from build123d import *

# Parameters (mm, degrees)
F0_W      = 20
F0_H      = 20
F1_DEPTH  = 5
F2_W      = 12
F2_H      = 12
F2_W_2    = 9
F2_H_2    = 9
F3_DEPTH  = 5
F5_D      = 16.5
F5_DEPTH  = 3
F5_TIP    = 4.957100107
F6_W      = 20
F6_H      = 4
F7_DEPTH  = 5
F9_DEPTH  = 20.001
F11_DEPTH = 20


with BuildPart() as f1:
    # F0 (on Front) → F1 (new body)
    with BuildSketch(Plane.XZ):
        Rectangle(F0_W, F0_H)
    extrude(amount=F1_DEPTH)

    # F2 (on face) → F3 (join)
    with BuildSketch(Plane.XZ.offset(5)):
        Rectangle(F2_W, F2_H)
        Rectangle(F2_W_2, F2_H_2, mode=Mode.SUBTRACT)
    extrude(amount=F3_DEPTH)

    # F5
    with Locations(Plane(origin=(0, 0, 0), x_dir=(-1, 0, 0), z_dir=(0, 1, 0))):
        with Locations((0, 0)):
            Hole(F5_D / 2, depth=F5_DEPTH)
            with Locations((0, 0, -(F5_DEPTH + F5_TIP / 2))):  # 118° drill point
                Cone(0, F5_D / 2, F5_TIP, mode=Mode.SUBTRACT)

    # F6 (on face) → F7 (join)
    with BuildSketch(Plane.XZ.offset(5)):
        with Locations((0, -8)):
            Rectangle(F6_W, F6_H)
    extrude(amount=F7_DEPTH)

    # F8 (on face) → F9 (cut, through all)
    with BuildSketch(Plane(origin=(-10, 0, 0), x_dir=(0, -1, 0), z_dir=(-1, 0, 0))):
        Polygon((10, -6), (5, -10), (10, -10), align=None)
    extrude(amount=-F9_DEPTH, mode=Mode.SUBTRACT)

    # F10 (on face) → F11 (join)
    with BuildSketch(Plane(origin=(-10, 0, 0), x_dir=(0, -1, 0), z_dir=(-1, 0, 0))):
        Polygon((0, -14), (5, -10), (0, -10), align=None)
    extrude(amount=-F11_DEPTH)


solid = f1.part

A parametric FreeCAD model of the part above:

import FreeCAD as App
import Part
import Sketcher

V = App.Vector
Q = App.Units.Quantity


def add_polygon(sketch, points):
    """Adds a closed chain of lines whose ends are joined by coincident constraints."""
    first, n = sketch.GeometryCount, len(points)
    for a, b in zip(points, points[1:] + points[:1]):
        sketch.addGeometry(Part.LineSegment(App.Vector(*a, 0), App.Vector(*b, 0)), False)
    for i in range(n):
        sketch.addConstraint(Sketcher.Constraint("Coincident", first + i, 2, first + (i + 1) % n, 1))

doc = App.newDocument("Part")
body = doc.addObject("PartDesign::Body", "Body")

sketch1 = body.newObject("Sketcher::SketchObject", "Sketch")
sketch1.AttachmentSupport = (doc.getObject("XZ_Plane"), [""])
sketch1.MapMode = "FlatFace"
add_polygon(sketch1, [(-10, 10), (-10, -10), (10, -10), (10, 10)])
sketch1.addConstraint(Sketcher.Constraint("Vertical", 0))
sketch1.addConstraint(Sketcher.Constraint("Horizontal", 1))
sketch1.addConstraint(Sketcher.Constraint("Vertical", 2))
sketch1.addConstraint(Sketcher.Constraint("Horizontal", 3))
sketch1.addConstraint(Sketcher.Constraint("Symmetric", 0, 2, 2, 2, -1, 1))
sketch1.addConstraint(Sketcher.Constraint("Equal", 3, 0))
sketch1.addConstraint(Sketcher.Constraint("DistanceX", 1, 1, 1, 2, Q("20 mm")))
pad1 = body.newObject("PartDesign::Pad", "Pad")
pad1.Profile = sketch1
pad1.Length = 5

sketch2 = body.newObject("Sketcher::SketchObject", "Sketch001")
sketch2.AttachmentSupport = (doc.getObject("XZ_Plane"), [""])
sketch2.MapMode = "FlatFace"
sketch2.AttachmentOffset = App.Placement(V(0, 0, 5), App.Rotation())
add_polygon(sketch2, [(-6, 6), (-6, -6), (6, -6), (6, 6)])
add_polygon(sketch2, [(4, -4), (-4, -4), (-4, 4), (4, 4)])
sketch2.addConstraint(Sketcher.Constraint("Vertical", 0))
sketch2.addConstraint(Sketcher.Constraint("Horizontal", 1))
sketch2.addConstraint(Sketcher.Constraint("Vertical", 2))
sketch2.addConstraint(Sketcher.Constraint("Horizontal", 3))
sketch2.addConstraint(Sketcher.Constraint("Horizontal", 4))
sketch2.addConstraint(Sketcher.Constraint("Vertical", 5))
sketch2.addConstraint(Sketcher.Constraint("Horizontal", 6))
sketch2.addConstraint(Sketcher.Constraint("Vertical", 7))
sketch2.addConstraint(Sketcher.Constraint("Symmetric", 0, 2, 2, 2, -1, 1))
sketch2.addConstraint(Sketcher.Constraint("Symmetric", 4, 2, 6, 2, -1, 1))
sketch2.addConstraint(Sketcher.Constraint("Equal", 3, 0))
sketch2.addConstraint(Sketcher.Constraint("Equal", 6, 5))
sketch2.addConstraint(Sketcher.Constraint("DistanceX", 1, 1, 1, 2, Q("12 mm")))
sketch2.addConstraint(Sketcher.Constraint("DistanceX", 4, 2, 4, 1, Q("9 mm")))
pad2 = body.newObject("PartDesign::Pad", "Pad001")
pad2.Profile = sketch2
pad2.Length = 5

sketch3 = body.newObject("Sketcher::SketchObject", "Sketch002")
sketch3.AttachmentSupport = (doc.getObject("XZ_Plane"), [""])
sketch3.MapMode = "FlatFace"
sketch3.addGeometry(Part.Circle(V(0, 0, 0), V(0, 0, 1), 8), False)
sketch3.addConstraint(Sketcher.Constraint("Coincident", 0, 3, -1, 1))
sketch3.addConstraint(Sketcher.Constraint("Diameter", 0, Q("16.5 mm")))
doc.recompute()
hole = body.newObject("PartDesign::Hole", "Hole")
hole.Profile = sketch3
hole.ThreadType = "None"
hole.Diameter = 16.5
hole.DepthType = "Dimension"
hole.Depth = 3
hole.DrillPoint = "Angled"
hole.DrillPointAngle = 118
hole.Reversed = True

sketch4 = body.newObject("Sketcher::SketchObject", "Sketch003")
sketch4.AttachmentSupport = (doc.getObject("XZ_Plane"), [""])
sketch4.MapMode = "FlatFace"
sketch4.AttachmentOffset = App.Placement(V(0, 0, 5), App.Rotation())
add_polygon(sketch4, [(-10, -6), (-10, -10), (10, -10), (10, -6)])
sketch4.addConstraint(Sketcher.Constraint("Vertical", 0))
sketch4.addConstraint(Sketcher.Constraint("Horizontal", 1))
sketch4.addConstraint(Sketcher.Constraint("Vertical", 2))
sketch4.addConstraint(Sketcher.Constraint("Horizontal", 3))
sketch4.addConstraint(Sketcher.Constraint("DistanceX", 1, 1, 1, 2, Q("20 mm")))
sketch4.addConstraint(Sketcher.Constraint("DistanceY", 0, 2, 0, 1, Q("4 mm")))
sketch4.addConstraint(Sketcher.Constraint("DistanceX", 0, 2, -1, 1, Q("10 mm")))
sketch4.addConstraint(Sketcher.Constraint("DistanceY", 0, 2, -1, 1, Q("10 mm")))
pad3 = body.newObject("PartDesign::Pad", "Pad002")
pad3.Profile = sketch4
pad3.Length = 5

sketch5 = body.newObject("Sketcher::SketchObject", "Sketch004")
sketch5.AttachmentSupport = (doc.getObject("YZ_Plane"), [""])
sketch5.MapMode = "FlatFace"
sketch5.AttachmentOffset = App.Placement(V(0, 0, -10), App.Rotation())
add_polygon(sketch5, [(-10, -6), (-5, -10), (-10, -10)])
sketch5.addConstraint(Sketcher.Constraint("Horizontal", 1))
sketch5.addConstraint(Sketcher.Constraint("Vertical", 2))
sketch5.addConstraint(Sketcher.Constraint("DistanceX", 1, 2, 1, 1, Q("5 mm")))
sketch5.addConstraint(Sketcher.Constraint("DistanceY", 2, 1, 2, 2, Q("4 mm")))
sketch5.addConstraint(Sketcher.Constraint("DistanceX", 0, 2, -1, 1, Q("5 mm")))
sketch5.addConstraint(Sketcher.Constraint("DistanceY", 0, 2, -1, 1, Q("10 mm")))
pocket1 = body.newObject("PartDesign::Pocket", "Pocket")
pocket1.Profile = sketch5
pocket1.Type = "ThroughAll"
pocket1.Reversed = True

sketch6 = body.newObject("Sketcher::SketchObject", "Sketch005")
sketch6.AttachmentSupport = (doc.getObject("YZ_Plane"), [""])
sketch6.MapMode = "FlatFace"
sketch6.AttachmentOffset = App.Placement(V(0, 0, -10), App.Rotation())
add_polygon(sketch6, [(0, -14), (-5, -10), (0, -10)])
sketch6.addConstraint(Sketcher.Constraint("Horizontal", 1))
sketch6.addConstraint(Sketcher.Constraint("Vertical", 2))
sketch6.addConstraint(Sketcher.Constraint("PointOnObject", 1, 2, -2))
sketch6.addConstraint(Sketcher.Constraint("DistanceX", 1, 1, 1, 2, Q("5 mm")))
sketch6.addConstraint(Sketcher.Constraint("DistanceY", 2, 2, 2, 1, Q("4 mm")))
sketch6.addConstraint(Sketcher.Constraint("DistanceY", 0, 2, -1, 1, Q("10 mm")))
pad4 = body.newObject("PartDesign::Pad", "Pad003")
pad4.Profile = sketch6
pad4.Length = 20

doc.recompute()
